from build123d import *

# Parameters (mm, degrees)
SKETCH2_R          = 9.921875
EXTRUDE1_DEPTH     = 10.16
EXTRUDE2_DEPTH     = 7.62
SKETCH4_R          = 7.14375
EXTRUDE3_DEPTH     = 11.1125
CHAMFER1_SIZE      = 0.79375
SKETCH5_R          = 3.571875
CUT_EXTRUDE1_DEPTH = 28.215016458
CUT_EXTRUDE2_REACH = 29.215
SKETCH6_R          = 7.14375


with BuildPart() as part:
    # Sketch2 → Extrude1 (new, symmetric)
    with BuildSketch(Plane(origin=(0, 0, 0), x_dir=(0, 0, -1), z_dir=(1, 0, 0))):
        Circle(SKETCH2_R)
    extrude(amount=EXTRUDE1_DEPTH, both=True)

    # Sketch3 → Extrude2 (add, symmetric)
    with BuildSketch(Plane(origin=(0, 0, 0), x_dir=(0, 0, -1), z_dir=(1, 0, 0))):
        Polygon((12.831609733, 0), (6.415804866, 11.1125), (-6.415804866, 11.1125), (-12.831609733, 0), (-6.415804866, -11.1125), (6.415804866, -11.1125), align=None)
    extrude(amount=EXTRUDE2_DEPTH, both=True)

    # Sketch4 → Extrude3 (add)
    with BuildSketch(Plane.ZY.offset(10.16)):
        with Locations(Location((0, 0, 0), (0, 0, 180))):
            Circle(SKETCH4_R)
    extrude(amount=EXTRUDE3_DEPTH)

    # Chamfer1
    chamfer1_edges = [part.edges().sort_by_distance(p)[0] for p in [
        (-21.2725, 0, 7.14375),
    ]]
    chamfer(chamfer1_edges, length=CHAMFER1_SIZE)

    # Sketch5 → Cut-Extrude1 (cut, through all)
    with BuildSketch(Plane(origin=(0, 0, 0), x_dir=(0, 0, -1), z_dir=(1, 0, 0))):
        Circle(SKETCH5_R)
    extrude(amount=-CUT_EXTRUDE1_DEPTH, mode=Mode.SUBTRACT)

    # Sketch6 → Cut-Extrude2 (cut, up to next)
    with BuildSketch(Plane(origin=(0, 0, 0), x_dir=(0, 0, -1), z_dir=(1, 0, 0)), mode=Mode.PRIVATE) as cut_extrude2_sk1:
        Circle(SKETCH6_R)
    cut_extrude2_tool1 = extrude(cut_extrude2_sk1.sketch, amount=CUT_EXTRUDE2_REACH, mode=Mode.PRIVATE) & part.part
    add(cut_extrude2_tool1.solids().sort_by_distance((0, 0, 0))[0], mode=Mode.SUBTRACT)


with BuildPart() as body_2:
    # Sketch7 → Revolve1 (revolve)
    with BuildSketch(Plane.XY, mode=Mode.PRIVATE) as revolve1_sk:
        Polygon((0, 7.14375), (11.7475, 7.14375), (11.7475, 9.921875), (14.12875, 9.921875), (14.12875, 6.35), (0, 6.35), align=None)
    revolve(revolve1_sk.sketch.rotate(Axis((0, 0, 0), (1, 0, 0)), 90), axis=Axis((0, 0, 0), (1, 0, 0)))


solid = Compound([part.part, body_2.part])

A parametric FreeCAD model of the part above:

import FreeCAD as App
import Part
import Sketcher

V = App.Vector
Q = App.Units.Quantity


def edges_at(feature, points):
    """Names of the edges that pass closest to the given points."""
    edges = feature.Shape.Edges
    near = lambda p: min(range(len(edges)), key=lambda i: edges[i].distToShape(Part.Vertex(*p))[0])
    return sorted({f"Edge{near(p) + 1}" for p in points})


def add_polygon(sketch, points):
    """Adds a closed chain of lines whose ends are joined by coincident constraints."""
    first, n = sketch.GeometryCount, len(points)
    for a, b in zip(points, points[1:] + points[:1]):
        sketch.addGeometry(Part.LineSegment(App.Vector(*a, 0), App.Vector(*b, 0)), False)
    for i in range(n):
        sketch.addConstraint(Sketcher.Constraint("Coincident", first + i, 2, first + (i + 1) % n, 1))

doc = App.newDocument("Part")
body = doc.addObject("PartDesign::Body", "Body")

sketch1 = body.newObject("Sketcher::SketchObject", "Sketch")
sketch1.AttachmentSupport = (doc.getObject("YZ_Plane"), [""])
sketch1.MapMode = "FlatFace"
sketch1.addGeometry(Part.Circle(V(0, 0, 0), V(0, 0, 1), 10), False)
sketch1.addConstraint(Sketcher.Constraint("Coincident", 0, 3, -1, 1))
sketch1.addConstraint(Sketcher.Constraint("Diameter", 0, Q("0.78125 in")))
pad1 = body.newObject("PartDesign::Pad", "Pad")
pad1.Profile = sketch1
pad1.Length = Q("0.8 in")
pad1.Midplane = True

sketch2 = body.newObject("Sketcher::SketchObject", "Sketch001")
sketch2.AttachmentSupport = (doc.getObject("YZ_Plane"), [""])
sketch2.MapMode = "FlatFace"
add_polygon(sketch2, [(0, -13), (11, -6), (11, 6), (0, 13), (-11, 6), (-11, -6)])
sketch2.addConstraint(Sketcher.Constraint("Vertical", 1))
sketch2.addConstraint(Sketcher.Constraint("Vertical", 4))
sketch2.addConstraint(Sketcher.Constraint("Symmetric", 0, 2, 3, 2, -1, 1))
sketch2.addConstraint(Sketcher.Constraint("Symmetric", 2, 2, 5, 2, -1, 1))
sketch2.addConstraint(Sketcher.Constraint("PointOnObject", 2, 2, -2))
sketch2.addConstraint(Sketcher.Constraint("Parallel", 2, 5))
sketch2.addConstraint(Sketcher.Constraint("Horizontal", 1, 2, 3, 2))
sketch2.addConstraint(Sketcher.Constraint("Angle", 0, Q("30 deg")))
sketch2.addConstraint(Sketcher.Constraint("DistanceX", -1, 1, 0, 2, Q("0.4375 in")))
sketch2.addConstraint(Sketcher.Constraint("DistanceY", 1, 1, 1, 2, 12.83161))
pad2 = body.newObject("PartDesign::Pad", "Pad001")
pad2.Profile = sketch2
pad2.Length = Q("0.6 in")
pad2.Midplane = True

sketch3 = body.newObject("Sketcher::SketchObject", "Sketch002")
sketch3.AttachmentSupport = (doc.getObject("YZ_Plane"), [""])
sketch3.MapMode = "FlatFace"
sketch3.AttachmentOffset = App.Placement(V(0, 0, -0.4 * 25.4), App.Rotation())
sketch3.addGeometry(Part.Circle(V(0, 0, 0), V(0, 0, 1), 7), False)
sketch3.addConstraint(Sketcher.Constraint("Coincident", 0, 3, -1, 1))
sketch3.addConstraint(Sketcher.Constraint("Diameter", 0, Q("0.5625 in")))
pad3 = body.newObject("PartDesign::Pad", "Pad002")
pad3.Profile = sketch3
pad3.Length = Q("0.4375 in")
pad3.Reversed = True
doc.recompute()

chamfer = body.newObject("PartDesign::Chamfer", "Chamfer")
chamfer.Base = (pad3, edges_at(pad3, [(-21.273, 0, 7.144)]))
chamfer.Size = Q("0.03125 in")

sketch4 = body.newObject("Sketcher::SketchObject", "Sketch003")
sketch4.AttachmentSupport = (doc.getObject("YZ_Plane"), [""])
sketch4.MapMode = "FlatFace"
sketch4.addGeometry(Part.Circle(V(0, 0, 0), V(0, 0, 1), 3.6), False)
sketch4.addConstraint(Sketcher.Constraint("Coincident", 0, 3, -1, 1))
sketch4.addConstraint(Sketcher.Constraint("Diameter", 0, Q("0.28125 in")))
pocket1 = body.newObject("PartDesign::Pocket", "Pocket")
pocket1.Profile = sketch4
pocket1.Type = "ThroughAll"

sketch5 = body.newObject("Sketcher::SketchObject", "Sketch004")
sketch5.AttachmentSupport = (doc.getObject("YZ_Plane"), [""])
sketch5.MapMode = "FlatFace"
sketch5.addGeometry(Part.Circle(V(0, 0, 0), V(0, 0, 1), 7), False)
sketch5.addConstraint(Sketcher.Constraint("Coincident", 0, 3, -1, 1))
sketch5.addConstraint(Sketcher.Constraint("Diameter", 0, Q("0.5625 in")))
pocket2 = body.newObject("PartDesign::Pocket", "Pocket001")
pocket2.Profile = sketch5
pocket2.Type = "UpToFirst"
pocket2.Reversed = True
body2 = doc.addObject("PartDesign::Body", "Body001")

sketch6 = body2.newObject("Sketcher::SketchObject", "Sketch005")
sketch6.AttachmentSupport = (doc.getObject("XY_Plane001"), [""])
sketch6.MapMode = "FlatFace"
add_polygon(sketch6, [(11.7, 7.1), (0, 7.1), (0, 6.3), (14.1, 6.3), (14.1, 9.9), (11.7, 9.9)])
sketch6.addConstraint(Sketcher.Constraint("Horizontal", 0))
sketch6.addConstraint(Sketcher.Constraint("Vertical", 1))
sketch6.addConstraint(Sketcher.Constraint("Horizontal", 2))
sketch6.addConstraint(Sketcher.Constraint("Vertical", 3))
sketch6.addConstraint(Sketcher.Constraint("Horizontal", 4))
sketch6.addConstraint(Sketcher.Constraint("Vertical", 5))
sketch6.addConstraint(Sketcher.Constraint("PointOnObject", 0, 2, -2))
sketch6.addConstraint(Sketcher.Constraint("DistanceX", 4, 2, 4, 1, Q("0.09375 in")))
sketch6.addConstraint(Sketcher.Constraint("DistanceY", 1, 2, 1, 1, Q("0.03125 in")))
sketch6.addConstraint(Sketcher.Constraint("DistanceY", 3, 1, 3, 2, Q("0.140625 in")))
sketch6.addConstraint(Sketcher.Constraint("DistanceY", -1, 1, 1, 2, Q("0.25 in")))
sketch6.addConstraint(Sketcher.Constraint("DistanceX", 0, 2, 0, 1, Q("0.4625 in")))
revolution = body2.newObject("PartDesign::Revolution", "Revolution")
revolution.Profile = sketch6
revolution.ReferenceAxis = (sketch6, ["H_Axis"])
revolution.Angle = 360

doc.recompute()
